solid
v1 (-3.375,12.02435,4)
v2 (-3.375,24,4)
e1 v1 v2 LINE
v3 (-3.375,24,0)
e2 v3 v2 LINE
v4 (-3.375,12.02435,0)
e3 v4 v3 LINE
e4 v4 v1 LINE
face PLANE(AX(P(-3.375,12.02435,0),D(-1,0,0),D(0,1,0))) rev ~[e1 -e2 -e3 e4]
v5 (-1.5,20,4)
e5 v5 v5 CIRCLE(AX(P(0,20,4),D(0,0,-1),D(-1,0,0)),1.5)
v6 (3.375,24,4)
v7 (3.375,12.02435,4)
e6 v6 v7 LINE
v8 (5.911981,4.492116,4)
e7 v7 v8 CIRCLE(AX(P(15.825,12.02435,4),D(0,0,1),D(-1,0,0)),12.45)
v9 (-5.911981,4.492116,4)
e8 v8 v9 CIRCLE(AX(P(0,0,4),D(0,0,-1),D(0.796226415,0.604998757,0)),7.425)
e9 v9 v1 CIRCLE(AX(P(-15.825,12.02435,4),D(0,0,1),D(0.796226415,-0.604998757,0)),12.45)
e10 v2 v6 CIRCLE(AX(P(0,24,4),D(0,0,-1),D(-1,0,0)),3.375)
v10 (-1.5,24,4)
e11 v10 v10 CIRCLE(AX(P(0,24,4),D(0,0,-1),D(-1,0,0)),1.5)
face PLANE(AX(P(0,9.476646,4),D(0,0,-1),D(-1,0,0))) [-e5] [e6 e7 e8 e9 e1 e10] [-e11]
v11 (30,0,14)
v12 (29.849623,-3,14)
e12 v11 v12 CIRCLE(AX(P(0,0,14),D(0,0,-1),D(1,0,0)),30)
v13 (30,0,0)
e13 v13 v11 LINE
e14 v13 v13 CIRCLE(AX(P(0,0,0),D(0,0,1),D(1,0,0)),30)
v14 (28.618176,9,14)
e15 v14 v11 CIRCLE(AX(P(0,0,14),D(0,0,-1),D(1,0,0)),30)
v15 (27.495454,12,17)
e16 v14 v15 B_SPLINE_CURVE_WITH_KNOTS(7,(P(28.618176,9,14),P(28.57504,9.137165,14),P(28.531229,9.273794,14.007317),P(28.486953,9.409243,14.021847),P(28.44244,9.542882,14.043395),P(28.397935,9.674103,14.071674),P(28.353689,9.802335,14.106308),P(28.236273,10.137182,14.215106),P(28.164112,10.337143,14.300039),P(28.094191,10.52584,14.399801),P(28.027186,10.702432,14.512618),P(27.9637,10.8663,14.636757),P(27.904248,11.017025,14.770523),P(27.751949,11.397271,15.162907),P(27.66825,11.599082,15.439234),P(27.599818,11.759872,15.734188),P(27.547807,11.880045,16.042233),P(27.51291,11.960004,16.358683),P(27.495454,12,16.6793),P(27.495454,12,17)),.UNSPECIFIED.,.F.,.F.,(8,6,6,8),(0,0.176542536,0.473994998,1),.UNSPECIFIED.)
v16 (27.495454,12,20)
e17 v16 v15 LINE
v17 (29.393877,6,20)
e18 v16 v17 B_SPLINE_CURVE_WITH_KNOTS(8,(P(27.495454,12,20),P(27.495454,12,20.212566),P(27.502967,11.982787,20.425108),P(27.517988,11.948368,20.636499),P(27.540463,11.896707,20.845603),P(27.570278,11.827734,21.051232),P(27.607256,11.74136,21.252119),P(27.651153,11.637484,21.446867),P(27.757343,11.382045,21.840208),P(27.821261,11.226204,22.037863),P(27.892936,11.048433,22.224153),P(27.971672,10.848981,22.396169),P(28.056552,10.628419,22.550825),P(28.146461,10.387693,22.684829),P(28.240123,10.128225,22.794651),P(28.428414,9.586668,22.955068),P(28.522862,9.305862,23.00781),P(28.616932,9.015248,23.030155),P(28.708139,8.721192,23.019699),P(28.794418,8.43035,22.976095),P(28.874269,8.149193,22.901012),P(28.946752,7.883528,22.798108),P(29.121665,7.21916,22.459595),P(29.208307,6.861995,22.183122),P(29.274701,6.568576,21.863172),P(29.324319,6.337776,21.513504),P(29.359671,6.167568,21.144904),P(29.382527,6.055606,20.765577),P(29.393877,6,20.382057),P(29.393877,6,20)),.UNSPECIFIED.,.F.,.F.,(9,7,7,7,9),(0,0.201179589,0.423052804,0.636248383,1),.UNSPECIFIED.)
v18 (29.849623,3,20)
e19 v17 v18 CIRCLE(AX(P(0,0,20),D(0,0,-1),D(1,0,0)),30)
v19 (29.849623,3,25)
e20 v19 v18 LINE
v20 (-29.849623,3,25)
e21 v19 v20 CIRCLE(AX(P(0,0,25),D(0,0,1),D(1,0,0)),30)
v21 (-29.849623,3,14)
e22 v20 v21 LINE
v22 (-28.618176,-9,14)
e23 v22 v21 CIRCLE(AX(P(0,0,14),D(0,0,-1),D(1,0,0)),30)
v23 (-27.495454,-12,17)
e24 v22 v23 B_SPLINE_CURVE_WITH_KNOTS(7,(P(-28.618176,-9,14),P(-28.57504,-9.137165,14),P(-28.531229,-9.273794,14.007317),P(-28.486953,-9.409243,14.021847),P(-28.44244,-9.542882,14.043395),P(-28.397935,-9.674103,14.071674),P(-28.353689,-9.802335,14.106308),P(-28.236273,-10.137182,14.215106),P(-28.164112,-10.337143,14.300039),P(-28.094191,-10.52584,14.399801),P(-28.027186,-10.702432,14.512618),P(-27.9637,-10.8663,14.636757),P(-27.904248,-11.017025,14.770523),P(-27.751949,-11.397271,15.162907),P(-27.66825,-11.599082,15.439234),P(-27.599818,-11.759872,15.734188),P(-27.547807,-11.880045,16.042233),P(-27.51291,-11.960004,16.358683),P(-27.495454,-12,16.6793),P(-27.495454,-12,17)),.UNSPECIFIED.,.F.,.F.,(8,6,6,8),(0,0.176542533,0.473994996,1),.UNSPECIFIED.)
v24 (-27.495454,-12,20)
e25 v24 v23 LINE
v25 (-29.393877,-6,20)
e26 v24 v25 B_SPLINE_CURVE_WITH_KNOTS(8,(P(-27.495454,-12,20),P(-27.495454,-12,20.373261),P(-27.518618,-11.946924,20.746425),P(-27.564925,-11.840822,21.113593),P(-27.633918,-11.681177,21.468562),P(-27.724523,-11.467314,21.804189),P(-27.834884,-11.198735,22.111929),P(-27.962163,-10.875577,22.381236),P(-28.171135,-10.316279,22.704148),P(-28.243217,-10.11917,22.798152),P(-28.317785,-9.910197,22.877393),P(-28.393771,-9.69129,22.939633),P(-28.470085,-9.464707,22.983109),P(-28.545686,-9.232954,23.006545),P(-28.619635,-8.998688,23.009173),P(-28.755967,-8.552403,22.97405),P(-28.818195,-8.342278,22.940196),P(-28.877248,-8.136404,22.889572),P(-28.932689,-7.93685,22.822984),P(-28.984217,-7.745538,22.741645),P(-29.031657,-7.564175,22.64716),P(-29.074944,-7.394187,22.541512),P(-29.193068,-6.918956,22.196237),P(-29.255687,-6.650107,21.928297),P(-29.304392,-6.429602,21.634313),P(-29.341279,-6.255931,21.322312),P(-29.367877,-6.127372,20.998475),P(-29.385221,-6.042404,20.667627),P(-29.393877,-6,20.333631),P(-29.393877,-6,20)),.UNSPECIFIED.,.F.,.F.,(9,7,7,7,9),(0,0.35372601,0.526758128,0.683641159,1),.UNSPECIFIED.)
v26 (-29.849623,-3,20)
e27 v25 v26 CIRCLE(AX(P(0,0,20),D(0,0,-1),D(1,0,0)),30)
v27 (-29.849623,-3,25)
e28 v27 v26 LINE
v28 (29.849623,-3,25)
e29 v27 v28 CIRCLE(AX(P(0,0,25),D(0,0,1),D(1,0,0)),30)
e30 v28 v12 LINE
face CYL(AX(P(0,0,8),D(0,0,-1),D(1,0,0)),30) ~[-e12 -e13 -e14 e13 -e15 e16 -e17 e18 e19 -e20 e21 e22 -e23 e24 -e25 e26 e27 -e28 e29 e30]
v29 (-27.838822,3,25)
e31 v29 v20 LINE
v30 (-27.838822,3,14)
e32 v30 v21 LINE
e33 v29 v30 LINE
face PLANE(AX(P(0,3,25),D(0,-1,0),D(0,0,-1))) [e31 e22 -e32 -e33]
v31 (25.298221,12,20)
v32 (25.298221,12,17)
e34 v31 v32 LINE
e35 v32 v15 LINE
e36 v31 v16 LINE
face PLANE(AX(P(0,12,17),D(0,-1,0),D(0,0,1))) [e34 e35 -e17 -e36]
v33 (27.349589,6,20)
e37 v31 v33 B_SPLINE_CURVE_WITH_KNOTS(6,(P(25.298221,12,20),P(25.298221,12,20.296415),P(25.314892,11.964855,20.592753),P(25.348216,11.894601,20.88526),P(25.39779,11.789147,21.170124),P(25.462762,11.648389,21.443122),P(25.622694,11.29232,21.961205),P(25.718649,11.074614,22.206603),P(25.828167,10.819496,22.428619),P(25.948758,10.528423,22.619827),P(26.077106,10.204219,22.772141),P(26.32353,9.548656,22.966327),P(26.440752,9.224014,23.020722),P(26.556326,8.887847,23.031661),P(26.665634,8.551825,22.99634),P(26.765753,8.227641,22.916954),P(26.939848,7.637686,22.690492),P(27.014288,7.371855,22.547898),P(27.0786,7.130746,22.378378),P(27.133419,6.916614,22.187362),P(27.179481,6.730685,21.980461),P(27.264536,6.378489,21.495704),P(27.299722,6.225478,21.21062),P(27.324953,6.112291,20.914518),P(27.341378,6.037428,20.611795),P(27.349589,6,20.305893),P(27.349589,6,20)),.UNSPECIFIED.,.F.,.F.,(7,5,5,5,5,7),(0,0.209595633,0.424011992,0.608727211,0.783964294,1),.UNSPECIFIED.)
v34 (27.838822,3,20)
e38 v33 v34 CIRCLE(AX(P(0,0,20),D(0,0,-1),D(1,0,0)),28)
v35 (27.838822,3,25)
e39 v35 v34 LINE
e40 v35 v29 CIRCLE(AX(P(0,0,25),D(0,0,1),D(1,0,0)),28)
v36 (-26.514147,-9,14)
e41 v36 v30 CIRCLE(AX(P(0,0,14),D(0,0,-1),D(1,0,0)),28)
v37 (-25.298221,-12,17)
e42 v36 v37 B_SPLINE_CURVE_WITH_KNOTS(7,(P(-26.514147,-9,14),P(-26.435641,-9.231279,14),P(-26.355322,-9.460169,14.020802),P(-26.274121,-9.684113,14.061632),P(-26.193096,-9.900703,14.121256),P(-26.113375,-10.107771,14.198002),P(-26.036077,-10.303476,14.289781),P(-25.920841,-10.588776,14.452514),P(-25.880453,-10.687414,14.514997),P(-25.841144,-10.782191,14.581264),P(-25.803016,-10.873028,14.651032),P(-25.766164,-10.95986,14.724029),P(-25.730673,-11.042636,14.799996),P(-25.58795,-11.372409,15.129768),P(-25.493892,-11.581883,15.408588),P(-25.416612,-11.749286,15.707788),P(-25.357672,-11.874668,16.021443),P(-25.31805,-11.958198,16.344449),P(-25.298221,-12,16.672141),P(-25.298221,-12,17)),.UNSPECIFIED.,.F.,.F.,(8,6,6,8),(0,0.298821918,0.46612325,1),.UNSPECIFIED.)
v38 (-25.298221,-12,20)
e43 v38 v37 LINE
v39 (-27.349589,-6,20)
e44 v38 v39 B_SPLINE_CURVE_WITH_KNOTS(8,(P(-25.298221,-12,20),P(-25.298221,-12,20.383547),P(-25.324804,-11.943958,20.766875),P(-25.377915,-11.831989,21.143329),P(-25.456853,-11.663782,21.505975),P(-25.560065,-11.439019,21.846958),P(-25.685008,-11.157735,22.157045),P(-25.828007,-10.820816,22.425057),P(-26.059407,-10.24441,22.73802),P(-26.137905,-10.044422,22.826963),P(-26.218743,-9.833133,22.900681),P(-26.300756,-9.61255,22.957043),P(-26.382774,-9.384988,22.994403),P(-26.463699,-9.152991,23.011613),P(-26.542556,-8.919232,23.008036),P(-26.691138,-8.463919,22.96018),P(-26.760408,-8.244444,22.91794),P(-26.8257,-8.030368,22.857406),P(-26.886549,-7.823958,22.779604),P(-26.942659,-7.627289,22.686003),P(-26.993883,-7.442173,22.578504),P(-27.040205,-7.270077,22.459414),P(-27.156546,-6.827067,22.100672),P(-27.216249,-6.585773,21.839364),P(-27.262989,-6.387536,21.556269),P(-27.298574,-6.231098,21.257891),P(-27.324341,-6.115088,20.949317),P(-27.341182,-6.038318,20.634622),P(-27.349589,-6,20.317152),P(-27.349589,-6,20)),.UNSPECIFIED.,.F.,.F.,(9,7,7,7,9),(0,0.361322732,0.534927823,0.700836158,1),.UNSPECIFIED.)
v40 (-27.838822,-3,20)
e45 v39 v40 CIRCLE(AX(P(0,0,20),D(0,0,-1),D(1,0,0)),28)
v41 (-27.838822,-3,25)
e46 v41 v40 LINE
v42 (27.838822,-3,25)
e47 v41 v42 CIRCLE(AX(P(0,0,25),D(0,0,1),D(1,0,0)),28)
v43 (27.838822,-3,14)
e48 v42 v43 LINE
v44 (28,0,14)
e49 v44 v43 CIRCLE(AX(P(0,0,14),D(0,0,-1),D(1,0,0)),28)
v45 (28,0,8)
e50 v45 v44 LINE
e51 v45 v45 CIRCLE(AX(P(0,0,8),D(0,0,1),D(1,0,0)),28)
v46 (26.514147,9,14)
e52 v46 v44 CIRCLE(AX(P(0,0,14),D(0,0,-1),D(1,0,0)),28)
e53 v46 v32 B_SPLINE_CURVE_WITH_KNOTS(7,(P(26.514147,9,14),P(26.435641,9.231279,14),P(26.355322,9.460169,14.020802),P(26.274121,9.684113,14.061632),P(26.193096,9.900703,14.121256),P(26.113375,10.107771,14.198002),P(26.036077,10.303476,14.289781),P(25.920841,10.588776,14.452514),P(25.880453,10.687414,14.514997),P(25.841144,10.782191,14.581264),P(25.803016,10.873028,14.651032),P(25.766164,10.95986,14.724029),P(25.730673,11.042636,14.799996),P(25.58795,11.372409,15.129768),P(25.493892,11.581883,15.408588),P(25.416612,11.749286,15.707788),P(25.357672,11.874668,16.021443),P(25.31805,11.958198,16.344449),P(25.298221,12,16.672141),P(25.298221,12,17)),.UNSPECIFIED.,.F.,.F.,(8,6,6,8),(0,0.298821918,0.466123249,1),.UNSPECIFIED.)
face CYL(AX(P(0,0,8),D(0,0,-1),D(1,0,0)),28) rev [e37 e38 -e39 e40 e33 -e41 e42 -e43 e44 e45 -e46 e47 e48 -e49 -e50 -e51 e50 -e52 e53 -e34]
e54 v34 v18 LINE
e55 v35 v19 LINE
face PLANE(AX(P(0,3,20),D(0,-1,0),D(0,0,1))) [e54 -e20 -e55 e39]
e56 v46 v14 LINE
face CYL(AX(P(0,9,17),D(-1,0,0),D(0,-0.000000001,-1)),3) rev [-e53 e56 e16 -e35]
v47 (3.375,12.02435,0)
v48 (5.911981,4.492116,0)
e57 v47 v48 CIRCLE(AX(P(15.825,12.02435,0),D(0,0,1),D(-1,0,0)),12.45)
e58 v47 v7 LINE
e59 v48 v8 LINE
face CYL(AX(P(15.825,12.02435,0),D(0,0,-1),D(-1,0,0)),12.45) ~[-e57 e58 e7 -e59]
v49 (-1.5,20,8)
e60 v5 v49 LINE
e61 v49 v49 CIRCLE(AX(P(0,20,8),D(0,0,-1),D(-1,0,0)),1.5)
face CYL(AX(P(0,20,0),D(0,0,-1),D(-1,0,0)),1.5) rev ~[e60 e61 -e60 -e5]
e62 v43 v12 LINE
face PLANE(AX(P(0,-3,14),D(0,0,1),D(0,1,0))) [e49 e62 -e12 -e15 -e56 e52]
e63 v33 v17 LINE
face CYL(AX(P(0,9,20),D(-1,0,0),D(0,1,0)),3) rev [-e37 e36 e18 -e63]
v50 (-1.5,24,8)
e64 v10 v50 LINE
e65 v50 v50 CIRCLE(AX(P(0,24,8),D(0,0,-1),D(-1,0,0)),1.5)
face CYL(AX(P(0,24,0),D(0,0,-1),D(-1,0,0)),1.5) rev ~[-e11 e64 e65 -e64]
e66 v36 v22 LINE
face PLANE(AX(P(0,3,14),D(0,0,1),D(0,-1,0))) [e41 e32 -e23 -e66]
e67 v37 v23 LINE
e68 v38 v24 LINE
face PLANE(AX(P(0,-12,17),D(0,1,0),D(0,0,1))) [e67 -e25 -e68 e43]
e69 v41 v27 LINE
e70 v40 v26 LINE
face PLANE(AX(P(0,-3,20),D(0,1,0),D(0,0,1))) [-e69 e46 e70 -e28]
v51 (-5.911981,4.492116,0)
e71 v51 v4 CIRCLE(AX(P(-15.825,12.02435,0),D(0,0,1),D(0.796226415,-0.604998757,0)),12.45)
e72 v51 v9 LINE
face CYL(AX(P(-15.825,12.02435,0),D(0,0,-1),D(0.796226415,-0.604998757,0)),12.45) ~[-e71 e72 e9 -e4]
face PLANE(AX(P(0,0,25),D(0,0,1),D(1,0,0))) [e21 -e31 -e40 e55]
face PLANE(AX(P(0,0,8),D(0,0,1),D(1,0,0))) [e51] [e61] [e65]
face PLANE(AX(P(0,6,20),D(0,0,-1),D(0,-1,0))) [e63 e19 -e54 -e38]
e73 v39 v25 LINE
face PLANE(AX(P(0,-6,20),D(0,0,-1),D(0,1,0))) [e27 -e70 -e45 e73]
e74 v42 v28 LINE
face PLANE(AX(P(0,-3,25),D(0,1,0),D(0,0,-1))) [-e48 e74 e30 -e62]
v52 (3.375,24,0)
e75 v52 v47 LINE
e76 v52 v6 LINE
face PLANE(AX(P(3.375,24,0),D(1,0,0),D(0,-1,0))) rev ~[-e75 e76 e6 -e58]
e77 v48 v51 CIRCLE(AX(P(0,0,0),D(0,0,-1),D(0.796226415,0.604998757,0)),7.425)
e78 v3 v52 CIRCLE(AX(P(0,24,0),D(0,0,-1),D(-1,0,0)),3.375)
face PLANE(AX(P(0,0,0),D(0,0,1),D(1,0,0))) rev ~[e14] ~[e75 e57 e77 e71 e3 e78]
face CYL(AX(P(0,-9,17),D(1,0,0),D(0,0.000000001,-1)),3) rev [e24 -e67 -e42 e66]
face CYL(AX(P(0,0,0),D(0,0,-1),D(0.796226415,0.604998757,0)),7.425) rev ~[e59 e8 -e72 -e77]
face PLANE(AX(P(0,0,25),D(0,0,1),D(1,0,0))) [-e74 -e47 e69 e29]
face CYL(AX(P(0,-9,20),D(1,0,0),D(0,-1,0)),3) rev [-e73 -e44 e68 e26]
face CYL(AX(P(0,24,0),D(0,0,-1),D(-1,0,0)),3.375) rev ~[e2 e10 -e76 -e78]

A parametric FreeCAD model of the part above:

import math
import FreeCAD as App
import Part
import Sketcher

doc = App.newDocument("Part")
body = doc.addObject("PartDesign::Body", "Body")

sketch1 = doc.addObject("Sketcher::SketchObject", "Sketch")
body.addObject(sketch1)
sketch1.AttachmentSupport = (doc.XY_Plane, [""])
sketch1.MapMode = "FlatFace"
sketch1.addGeometry(Part.Circle(App.Vector(0, 0, 0), App.Vector(0, 0, 1), 30), False)
sketch1.addConstraint([
    Sketcher.Constraint("Coincident", 0, 3, -1, 1),
    Sketcher.Constraint("Diameter", 0, 60.0),
])
pad1 = doc.addObject("PartDesign::Pad", "Pad")
body.addObject(pad1)
pad1.Profile = sketch1
pad1.Length = 8

sketch2 = doc.addObject("Sketcher::SketchObject", "Sketch001")
body.addObject(sketch2)
sketch2.AttachmentSupport = (doc.XY_Plane, [""])
sketch2.MapMode = "FlatFace"
sketch2.AttachmentOffset = App.Placement(App.Vector(0, 0, 8), App.Rotation())
sketch2.addGeometry([
    Part.Circle(App.Vector(0, 0, 0), App.Vector(0, 0, 1), 30),
    Part.Circle(App.Vector(0, 0, 0), App.Vector(0, 0, 1), 28),
], False)
sketch2.addConstraint([
    Sketcher.Constraint("Coincident", 0, 3, -1, 1),
    Sketcher.Constraint("Coincident", 1, 3, -1, 1),
    Sketcher.Constraint("Diameter", 0, 60.0),
    Sketcher.Constraint("Diameter", 1, 56.0),
])
pad2 = doc.addObject("PartDesign::Pad", "Pad001")
body.addObject(pad2)
pad2.Profile = sketch2
pad2.Length = 17

sketch3 = doc.addObject("Sketcher::SketchObject", "Sketch002")
body.addObject(sketch3)
sketch3.AttachmentSupport = (doc.YZ_Plane, [""])
sketch3.MapMode = "FlatFace"
sketch3.addGeometry([
    Part.LineSegment(App.Vector(3, 14, 0), App.Vector(3, 25, 0)),
    Part.LineSegment(App.Vector(3, 25, 0), App.Vector(-3, 25, 0)),
    Part.LineSegment(App.Vector(-3, 25, 0), App.Vector(-3, 20, 0)),
    Part.LineSegment(App.Vector(-3, 20, 0), App.Vector(-6, 20, 0)),
    Part.ArcOfCircle(Part.Circle(App.Vector(-9, 20, 0), App.Vector(0, 0, 1), 3), math.radians(0), math.radians(180)),
    Part.LineSegment(App.Vector(-12, 20, 0), App.Vector(-12, 17, 0)),
    Part.ArcOfCircle(Part.Circle(App.Vector(-9, 17, 0), App.Vector(0, 0, 1), 3), math.radians(180), math.radians(270)),
    Part.LineSegment(App.Vector(-9, 14, 0), App.Vector(3, 14, 0)),
], False)
sketch3.addConstraint([
    Sketcher.Constraint("Coincident", 0, 2, 1, 1),
    Sketcher.Constraint("Coincident", 1, 2, 2, 1),
    Sketcher.Constraint("Coincident", 2, 2, 3, 1),
    Sketcher.Constraint("Coincident", 3, 2, 4, 1),
    Sketcher.Constraint("Tangent", 4, 2, 5, 1),
    Sketcher.Constraint("Tangent", 5, 2, 6, 1),
    Sketcher.Constraint("Tangent", 6, 2, 7, 1),
    Sketcher.Constraint("Coincident", 7, 2, 0, 1),
    Sketcher.Constraint("Vertical", 0),
    Sketcher.Constraint("Horizontal", 1),
    Sketcher.Constraint("Vertical", 2),
    Sketcher.Constraint("Horizontal", 3),
    Sketcher.Constraint("Vertical", 5),
    Sketcher.Constraint("Horizontal", 7),
    Sketcher.Constraint("Equal", 4, 6),
    Sketcher.Constraint("Horizontal", 4, 3, 2, 2),
    Sketcher.Constraint("Equal", 3, 5),
    Sketcher.Constraint("Radius", 4, 3.0),
    Sketcher.Constraint("DistanceX", 1, 2, 1, 1, 6.0),
    Sketcher.Constraint("DistanceX", 3, 2, 3, 1, 3.0),
    Sketcher.Constraint("DistanceY", 0, 1, 0, 2, 11.0),
    Sketcher.Constraint("DistanceX", 4, 3, -1, 1, 9.0),
    Sketcher.Constraint("DistanceY", -1, 1, 4, 3, 20.0),
])
pocket1 = doc.addObject("PartDesign::Pocket", "Pocket")
body.addObject(pocket1)
pocket1.Profile = sketch3
pocket1.Length = 39
doc.recompute()

polarpattern = doc.addObject("PartDesign::PolarPattern", "PolarPattern")
body.addObject(polarpattern)
polarpattern.Originals = [pocket1]
polarpattern.Axis = (doc.Z_Axis, [""])
polarpattern.Angle = 360
polarpattern.Occurrences = 2
body.Tip = polarpattern

sketch4 = doc.addObject("Sketcher::SketchObject", "Sketch003")
body.addObject(sketch4)
sketch4.AttachmentSupport = (doc.XY_Plane, [""])
sketch4.MapMode = "FlatFace"
sketch4.addGeometry([
    Part.LineSegment(App.Vector(3.4, 24, 0), App.Vector(3.4, 12, 0)),
    Part.ArcOfCircle(Part.Circle(App.Vector(15.8, 12, 0), App.Vector(0, 0, 1), 12.4), math.radians(180), math.radians(217)),
    Part.ArcOfCircle(Part.Circle(App.Vector(0, 0, 0), App.Vector(0, 0, 1), 7.4), math.radians(143), math.radians(397)),
    Part.ArcOfCircle(Part.Circle(App.Vector(-15.8, 12, 0), App.Vector(0, 0, 1), 12.4), math.radians(-37), math.radians(0)),
    Part.LineSegment(App.Vector(-3.4, 12, 0), App.Vector(-3.4, 24, 0)),
    Part.ArcOfCircle(Part.Circle(App.Vector(0, 24, 0), App.Vector(0, 0, 1), 3.4), math.radians(0), math.radians(180)),
], False)
sketch4.addConstraint([
    Sketcher.Constraint("Tangent", 0, 2, 1, 1),
    Sketcher.Constraint("Tangent", 1, 2, 2, 2),
    Sketcher.Constraint("Tangent", 2, 1, 3, 1),
    Sketcher.Constraint("Tangent", 3, 2, 4, 1),
    Sketcher.Constraint("Tangent", 4, 2, 5, 2),
    Sketcher.Constraint("Tangent", 5, 1, 0, 1),
    Sketcher.Constraint("Vertical", 0),
    Sketcher.Constraint("Vertical", 4),
    Sketcher.Constraint("Coincident", 2, 3, -1, 1),
    Sketcher.Constraint("Equal", 1, 3),
    Sketcher.Constraint("PointOnObject", 5, 3, -2),
    Sketcher.Constraint("Radius", 1, 12.45),
    Sketcher.Constraint("DistanceY", -1, 1, 5, 3, 24.0),
    Sketcher.Constraint("Radius", 2, 7.425),
    Sketcher.Constraint("Radius", 5, 3.375),
])
pocket2 = doc.addObject("PartDesign::Pocket", "Pocket001")
body.addObject(pocket2)
pocket2.Profile = sketch4
pocket2.Length = 4
pocket2.Reversed = True

sketch5 = doc.addObject("Sketcher::SketchObject", "Sketch004")
body.addObject(sketch5)
sketch5.AttachmentSupport = (doc.XY_Plane, [""])
sketch5.MapMode = "FlatFace"
sketch5.addGeometry([
    Part.Circle(App.Vector(0, 24, 0), App.Vector(0, 0, 1), 1.5),
    Part.Circle(App.Vector(0, 20, 0), App.Vector(0, 0, 1), 1.5),
], False)
sketch5.addConstraint([
    Sketcher.Constraint("Equal", 0, 1),
    Sketcher.Constraint("PointOnObject", 0, 3, -2),
    Sketcher.Constraint("PointOnObject", 1, 3, -2),
    Sketcher.Constraint("Diameter", 0, 3.0),
    Sketcher.Constraint("DistanceY", -1, 1, 0, 3, 24.0),
    Sketcher.Constraint("DistanceY", -1, 1, 1, 3, 20.0),
])
pocket3 = doc.addObject("PartDesign::Pocket", "Pocket002")
body.addObject(pocket3)
pocket3.Profile = sketch5
pocket3.Length = 20
pocket3.Reversed = True

doc.recompute()
